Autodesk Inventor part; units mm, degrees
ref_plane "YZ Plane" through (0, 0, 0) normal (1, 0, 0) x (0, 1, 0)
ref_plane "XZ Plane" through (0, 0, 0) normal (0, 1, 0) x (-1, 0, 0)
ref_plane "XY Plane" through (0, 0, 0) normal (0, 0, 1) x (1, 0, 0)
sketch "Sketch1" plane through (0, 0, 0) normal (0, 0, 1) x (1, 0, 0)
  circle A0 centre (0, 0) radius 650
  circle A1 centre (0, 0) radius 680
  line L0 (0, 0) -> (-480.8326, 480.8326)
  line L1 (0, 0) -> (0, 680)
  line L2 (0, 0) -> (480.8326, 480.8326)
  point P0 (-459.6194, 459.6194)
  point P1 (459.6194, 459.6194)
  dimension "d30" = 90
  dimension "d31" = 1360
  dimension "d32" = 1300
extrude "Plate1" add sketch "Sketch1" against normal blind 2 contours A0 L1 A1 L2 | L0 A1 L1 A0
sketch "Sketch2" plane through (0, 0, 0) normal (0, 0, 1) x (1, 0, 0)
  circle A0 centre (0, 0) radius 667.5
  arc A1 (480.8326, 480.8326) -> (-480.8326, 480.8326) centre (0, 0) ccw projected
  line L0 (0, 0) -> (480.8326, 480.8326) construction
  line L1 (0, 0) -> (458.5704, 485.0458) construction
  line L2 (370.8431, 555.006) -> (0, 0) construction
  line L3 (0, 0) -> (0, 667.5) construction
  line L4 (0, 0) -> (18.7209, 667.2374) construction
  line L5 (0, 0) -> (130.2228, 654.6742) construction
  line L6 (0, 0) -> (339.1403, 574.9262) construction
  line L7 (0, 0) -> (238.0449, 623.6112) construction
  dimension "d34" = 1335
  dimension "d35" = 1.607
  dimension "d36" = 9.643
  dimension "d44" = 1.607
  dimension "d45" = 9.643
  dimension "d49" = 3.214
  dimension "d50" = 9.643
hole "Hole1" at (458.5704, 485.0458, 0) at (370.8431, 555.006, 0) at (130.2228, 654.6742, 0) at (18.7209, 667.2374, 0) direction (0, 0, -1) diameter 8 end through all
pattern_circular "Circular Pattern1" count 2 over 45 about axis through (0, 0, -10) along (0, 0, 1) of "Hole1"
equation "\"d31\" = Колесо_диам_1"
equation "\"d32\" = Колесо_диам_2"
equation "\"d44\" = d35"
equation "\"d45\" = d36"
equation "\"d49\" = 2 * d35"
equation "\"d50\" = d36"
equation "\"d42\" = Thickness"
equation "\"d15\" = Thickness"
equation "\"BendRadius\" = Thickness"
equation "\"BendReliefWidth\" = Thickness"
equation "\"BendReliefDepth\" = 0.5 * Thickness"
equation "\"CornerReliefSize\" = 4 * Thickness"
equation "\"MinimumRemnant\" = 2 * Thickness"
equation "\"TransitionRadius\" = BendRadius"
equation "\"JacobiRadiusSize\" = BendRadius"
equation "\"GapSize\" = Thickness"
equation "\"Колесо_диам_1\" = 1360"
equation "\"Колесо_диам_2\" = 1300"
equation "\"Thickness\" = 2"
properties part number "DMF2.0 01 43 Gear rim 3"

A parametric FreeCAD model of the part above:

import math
import FreeCAD as App
import Part
import Sketcher

V = App.Vector

doc = App.newDocument("Part")
body = doc.addObject("PartDesign::Body", "Body")

# Sketch on XY plane
sketch1 = body.newObject("Sketcher::SketchObject", "Sketch")
sketch1.AttachmentSupport = (doc.getObject("XY_Plane"), [""])
sketch1.MapMode = "FlatFace"
sketch1.addGeometry(Part.LineSegment(V(460, 460, 0), V(481, 481, 0)), False)
sketch1.addGeometry(Part.ArcOfCircle(Part.Circle(V(0, 0, 0), V(0, 0, 1), 680), math.radians(45), math.radians(135)), False)
sketch1.addGeometry(Part.LineSegment(V(-481, 481, 0), V(-460, 460, 0)), False)
sketch1.addGeometry(Part.ArcOfCircle(Part.Circle(V(0, 0, 0), V(0, 0, 1), 650), math.radians(45), math.radians(135)), False)
sketch1.addConstraint(Sketcher.Constraint("Coincident", 0, 2, 1, 1))
sketch1.addConstraint(Sketcher.Constraint("Coincident", 1, 2, 2, 1))
sketch1.addConstraint(Sketcher.Constraint("Coincident", 2, 2, 3, 2))
sketch1.addConstraint(Sketcher.Constraint("Coincident", 3, 1, 0, 1))
sketch1.addConstraint(Sketcher.Constraint("Coincident", 1, 3, -1, 1))
sketch1.addConstraint(Sketcher.Constraint("Coincident", 3, 3, -1, 1))
sketch1.addConstraint(Sketcher.Constraint("Perpendicular", 0, 2))
sketch1.addConstraint(Sketcher.Constraint("Horizontal", 0, 2, 1, 2))
sketch1.addConstraint(Sketcher.Constraint("Horizontal", 2, 2, 3, 1))
sketch1.addConstraint(Sketcher.Constraint("Radius", 1, 680.0))
sketch1.addConstraint(Sketcher.Constraint("Radius", 3, 650.0))
sketch1.addConstraint(Sketcher.Constraint("DistanceX", 2, 2, 0, 2, 940.452))
pad1 = body.newObject("PartDesign::Pad", "Pad")
pad1.Profile = sketch1
pad1.Length = 2
pad1.Reversed = True

# Sketch on XY plane
sketch2 = body.newObject("Sketcher::SketchObject", "Sketch001")
sketch2.AttachmentSupport = (doc.getObject("XY_Plane"), [""])
sketch2.MapMode = "FlatFace"
sketch2.addGeometry(Part.Circle(V(458.6, 485, 0), V(0, 0, 1), 4), False)
sketch2.addGeometry(Part.Circle(V(370.8, 555, 0), V(0, 0, 1), 4), False)
sketch2.addGeometry(Part.Circle(V(130.2, 654.7, 0), V(0, 0, 1), 4), False)
sketch2.addGeometry(Part.Circle(V(18.7, 667.2, 0), V(0, 0, 1), 4), False)
sketch2.addConstraint(Sketcher.Constraint("Equal", 0, 1))
sketch2.addConstraint(Sketcher.Constraint("Equal", 1, 2))
sketch2.addConstraint(Sketcher.Constraint("Equal", 2, 3))
sketch2.addConstraint(Sketcher.Constraint("Diameter", 0, 8.0))
sketch2.addConstraint(Sketcher.Constraint("DistanceX", -1, 1, 1, 3, 370.843))
sketch2.addConstraint(Sketcher.Constraint("DistanceY", -1, 1, 1, 3, 555.006))
sketch2.addConstraint(Sketcher.Constraint("DistanceX", -1, 1, 3, 3, 18.721))
sketch2.addConstraint(Sketcher.Constraint("DistanceX", 3, 3, 2, 3, 111.502))
sketch2.addConstraint(Sketcher.Constraint("DistanceX", -1, 1, 0, 3, 458.5704))
sketch2.addConstraint(Sketcher.Constraint("DistanceY", -1, 1, 0, 3, 485.0458))
sketch2.addConstraint(Sketcher.Constraint("DistanceY", -1, 1, 2, 3, 654.6742))
sketch2.addConstraint(Sketcher.Constraint("DistanceY", -1, 1, 3, 3, 667.2374))
doc.recompute()
hole = body.newObject("PartDesign::Hole", "Hole")
hole.Profile = sketch2
hole.ThreadType = "None"
hole.Diameter = 8
hole.DepthType = "ThroughAll"
doc.recompute()

polarpattern = body.newObject("PartDesign::PolarPattern", "PolarPattern")
polarpattern.Originals = [hole]
polarpattern.Axis = (doc.getObject("Z_Axis"), [""])
polarpattern.Angle = 45
polarpattern.Occurrences = 2
body.Tip = polarpattern

doc.recompute()
